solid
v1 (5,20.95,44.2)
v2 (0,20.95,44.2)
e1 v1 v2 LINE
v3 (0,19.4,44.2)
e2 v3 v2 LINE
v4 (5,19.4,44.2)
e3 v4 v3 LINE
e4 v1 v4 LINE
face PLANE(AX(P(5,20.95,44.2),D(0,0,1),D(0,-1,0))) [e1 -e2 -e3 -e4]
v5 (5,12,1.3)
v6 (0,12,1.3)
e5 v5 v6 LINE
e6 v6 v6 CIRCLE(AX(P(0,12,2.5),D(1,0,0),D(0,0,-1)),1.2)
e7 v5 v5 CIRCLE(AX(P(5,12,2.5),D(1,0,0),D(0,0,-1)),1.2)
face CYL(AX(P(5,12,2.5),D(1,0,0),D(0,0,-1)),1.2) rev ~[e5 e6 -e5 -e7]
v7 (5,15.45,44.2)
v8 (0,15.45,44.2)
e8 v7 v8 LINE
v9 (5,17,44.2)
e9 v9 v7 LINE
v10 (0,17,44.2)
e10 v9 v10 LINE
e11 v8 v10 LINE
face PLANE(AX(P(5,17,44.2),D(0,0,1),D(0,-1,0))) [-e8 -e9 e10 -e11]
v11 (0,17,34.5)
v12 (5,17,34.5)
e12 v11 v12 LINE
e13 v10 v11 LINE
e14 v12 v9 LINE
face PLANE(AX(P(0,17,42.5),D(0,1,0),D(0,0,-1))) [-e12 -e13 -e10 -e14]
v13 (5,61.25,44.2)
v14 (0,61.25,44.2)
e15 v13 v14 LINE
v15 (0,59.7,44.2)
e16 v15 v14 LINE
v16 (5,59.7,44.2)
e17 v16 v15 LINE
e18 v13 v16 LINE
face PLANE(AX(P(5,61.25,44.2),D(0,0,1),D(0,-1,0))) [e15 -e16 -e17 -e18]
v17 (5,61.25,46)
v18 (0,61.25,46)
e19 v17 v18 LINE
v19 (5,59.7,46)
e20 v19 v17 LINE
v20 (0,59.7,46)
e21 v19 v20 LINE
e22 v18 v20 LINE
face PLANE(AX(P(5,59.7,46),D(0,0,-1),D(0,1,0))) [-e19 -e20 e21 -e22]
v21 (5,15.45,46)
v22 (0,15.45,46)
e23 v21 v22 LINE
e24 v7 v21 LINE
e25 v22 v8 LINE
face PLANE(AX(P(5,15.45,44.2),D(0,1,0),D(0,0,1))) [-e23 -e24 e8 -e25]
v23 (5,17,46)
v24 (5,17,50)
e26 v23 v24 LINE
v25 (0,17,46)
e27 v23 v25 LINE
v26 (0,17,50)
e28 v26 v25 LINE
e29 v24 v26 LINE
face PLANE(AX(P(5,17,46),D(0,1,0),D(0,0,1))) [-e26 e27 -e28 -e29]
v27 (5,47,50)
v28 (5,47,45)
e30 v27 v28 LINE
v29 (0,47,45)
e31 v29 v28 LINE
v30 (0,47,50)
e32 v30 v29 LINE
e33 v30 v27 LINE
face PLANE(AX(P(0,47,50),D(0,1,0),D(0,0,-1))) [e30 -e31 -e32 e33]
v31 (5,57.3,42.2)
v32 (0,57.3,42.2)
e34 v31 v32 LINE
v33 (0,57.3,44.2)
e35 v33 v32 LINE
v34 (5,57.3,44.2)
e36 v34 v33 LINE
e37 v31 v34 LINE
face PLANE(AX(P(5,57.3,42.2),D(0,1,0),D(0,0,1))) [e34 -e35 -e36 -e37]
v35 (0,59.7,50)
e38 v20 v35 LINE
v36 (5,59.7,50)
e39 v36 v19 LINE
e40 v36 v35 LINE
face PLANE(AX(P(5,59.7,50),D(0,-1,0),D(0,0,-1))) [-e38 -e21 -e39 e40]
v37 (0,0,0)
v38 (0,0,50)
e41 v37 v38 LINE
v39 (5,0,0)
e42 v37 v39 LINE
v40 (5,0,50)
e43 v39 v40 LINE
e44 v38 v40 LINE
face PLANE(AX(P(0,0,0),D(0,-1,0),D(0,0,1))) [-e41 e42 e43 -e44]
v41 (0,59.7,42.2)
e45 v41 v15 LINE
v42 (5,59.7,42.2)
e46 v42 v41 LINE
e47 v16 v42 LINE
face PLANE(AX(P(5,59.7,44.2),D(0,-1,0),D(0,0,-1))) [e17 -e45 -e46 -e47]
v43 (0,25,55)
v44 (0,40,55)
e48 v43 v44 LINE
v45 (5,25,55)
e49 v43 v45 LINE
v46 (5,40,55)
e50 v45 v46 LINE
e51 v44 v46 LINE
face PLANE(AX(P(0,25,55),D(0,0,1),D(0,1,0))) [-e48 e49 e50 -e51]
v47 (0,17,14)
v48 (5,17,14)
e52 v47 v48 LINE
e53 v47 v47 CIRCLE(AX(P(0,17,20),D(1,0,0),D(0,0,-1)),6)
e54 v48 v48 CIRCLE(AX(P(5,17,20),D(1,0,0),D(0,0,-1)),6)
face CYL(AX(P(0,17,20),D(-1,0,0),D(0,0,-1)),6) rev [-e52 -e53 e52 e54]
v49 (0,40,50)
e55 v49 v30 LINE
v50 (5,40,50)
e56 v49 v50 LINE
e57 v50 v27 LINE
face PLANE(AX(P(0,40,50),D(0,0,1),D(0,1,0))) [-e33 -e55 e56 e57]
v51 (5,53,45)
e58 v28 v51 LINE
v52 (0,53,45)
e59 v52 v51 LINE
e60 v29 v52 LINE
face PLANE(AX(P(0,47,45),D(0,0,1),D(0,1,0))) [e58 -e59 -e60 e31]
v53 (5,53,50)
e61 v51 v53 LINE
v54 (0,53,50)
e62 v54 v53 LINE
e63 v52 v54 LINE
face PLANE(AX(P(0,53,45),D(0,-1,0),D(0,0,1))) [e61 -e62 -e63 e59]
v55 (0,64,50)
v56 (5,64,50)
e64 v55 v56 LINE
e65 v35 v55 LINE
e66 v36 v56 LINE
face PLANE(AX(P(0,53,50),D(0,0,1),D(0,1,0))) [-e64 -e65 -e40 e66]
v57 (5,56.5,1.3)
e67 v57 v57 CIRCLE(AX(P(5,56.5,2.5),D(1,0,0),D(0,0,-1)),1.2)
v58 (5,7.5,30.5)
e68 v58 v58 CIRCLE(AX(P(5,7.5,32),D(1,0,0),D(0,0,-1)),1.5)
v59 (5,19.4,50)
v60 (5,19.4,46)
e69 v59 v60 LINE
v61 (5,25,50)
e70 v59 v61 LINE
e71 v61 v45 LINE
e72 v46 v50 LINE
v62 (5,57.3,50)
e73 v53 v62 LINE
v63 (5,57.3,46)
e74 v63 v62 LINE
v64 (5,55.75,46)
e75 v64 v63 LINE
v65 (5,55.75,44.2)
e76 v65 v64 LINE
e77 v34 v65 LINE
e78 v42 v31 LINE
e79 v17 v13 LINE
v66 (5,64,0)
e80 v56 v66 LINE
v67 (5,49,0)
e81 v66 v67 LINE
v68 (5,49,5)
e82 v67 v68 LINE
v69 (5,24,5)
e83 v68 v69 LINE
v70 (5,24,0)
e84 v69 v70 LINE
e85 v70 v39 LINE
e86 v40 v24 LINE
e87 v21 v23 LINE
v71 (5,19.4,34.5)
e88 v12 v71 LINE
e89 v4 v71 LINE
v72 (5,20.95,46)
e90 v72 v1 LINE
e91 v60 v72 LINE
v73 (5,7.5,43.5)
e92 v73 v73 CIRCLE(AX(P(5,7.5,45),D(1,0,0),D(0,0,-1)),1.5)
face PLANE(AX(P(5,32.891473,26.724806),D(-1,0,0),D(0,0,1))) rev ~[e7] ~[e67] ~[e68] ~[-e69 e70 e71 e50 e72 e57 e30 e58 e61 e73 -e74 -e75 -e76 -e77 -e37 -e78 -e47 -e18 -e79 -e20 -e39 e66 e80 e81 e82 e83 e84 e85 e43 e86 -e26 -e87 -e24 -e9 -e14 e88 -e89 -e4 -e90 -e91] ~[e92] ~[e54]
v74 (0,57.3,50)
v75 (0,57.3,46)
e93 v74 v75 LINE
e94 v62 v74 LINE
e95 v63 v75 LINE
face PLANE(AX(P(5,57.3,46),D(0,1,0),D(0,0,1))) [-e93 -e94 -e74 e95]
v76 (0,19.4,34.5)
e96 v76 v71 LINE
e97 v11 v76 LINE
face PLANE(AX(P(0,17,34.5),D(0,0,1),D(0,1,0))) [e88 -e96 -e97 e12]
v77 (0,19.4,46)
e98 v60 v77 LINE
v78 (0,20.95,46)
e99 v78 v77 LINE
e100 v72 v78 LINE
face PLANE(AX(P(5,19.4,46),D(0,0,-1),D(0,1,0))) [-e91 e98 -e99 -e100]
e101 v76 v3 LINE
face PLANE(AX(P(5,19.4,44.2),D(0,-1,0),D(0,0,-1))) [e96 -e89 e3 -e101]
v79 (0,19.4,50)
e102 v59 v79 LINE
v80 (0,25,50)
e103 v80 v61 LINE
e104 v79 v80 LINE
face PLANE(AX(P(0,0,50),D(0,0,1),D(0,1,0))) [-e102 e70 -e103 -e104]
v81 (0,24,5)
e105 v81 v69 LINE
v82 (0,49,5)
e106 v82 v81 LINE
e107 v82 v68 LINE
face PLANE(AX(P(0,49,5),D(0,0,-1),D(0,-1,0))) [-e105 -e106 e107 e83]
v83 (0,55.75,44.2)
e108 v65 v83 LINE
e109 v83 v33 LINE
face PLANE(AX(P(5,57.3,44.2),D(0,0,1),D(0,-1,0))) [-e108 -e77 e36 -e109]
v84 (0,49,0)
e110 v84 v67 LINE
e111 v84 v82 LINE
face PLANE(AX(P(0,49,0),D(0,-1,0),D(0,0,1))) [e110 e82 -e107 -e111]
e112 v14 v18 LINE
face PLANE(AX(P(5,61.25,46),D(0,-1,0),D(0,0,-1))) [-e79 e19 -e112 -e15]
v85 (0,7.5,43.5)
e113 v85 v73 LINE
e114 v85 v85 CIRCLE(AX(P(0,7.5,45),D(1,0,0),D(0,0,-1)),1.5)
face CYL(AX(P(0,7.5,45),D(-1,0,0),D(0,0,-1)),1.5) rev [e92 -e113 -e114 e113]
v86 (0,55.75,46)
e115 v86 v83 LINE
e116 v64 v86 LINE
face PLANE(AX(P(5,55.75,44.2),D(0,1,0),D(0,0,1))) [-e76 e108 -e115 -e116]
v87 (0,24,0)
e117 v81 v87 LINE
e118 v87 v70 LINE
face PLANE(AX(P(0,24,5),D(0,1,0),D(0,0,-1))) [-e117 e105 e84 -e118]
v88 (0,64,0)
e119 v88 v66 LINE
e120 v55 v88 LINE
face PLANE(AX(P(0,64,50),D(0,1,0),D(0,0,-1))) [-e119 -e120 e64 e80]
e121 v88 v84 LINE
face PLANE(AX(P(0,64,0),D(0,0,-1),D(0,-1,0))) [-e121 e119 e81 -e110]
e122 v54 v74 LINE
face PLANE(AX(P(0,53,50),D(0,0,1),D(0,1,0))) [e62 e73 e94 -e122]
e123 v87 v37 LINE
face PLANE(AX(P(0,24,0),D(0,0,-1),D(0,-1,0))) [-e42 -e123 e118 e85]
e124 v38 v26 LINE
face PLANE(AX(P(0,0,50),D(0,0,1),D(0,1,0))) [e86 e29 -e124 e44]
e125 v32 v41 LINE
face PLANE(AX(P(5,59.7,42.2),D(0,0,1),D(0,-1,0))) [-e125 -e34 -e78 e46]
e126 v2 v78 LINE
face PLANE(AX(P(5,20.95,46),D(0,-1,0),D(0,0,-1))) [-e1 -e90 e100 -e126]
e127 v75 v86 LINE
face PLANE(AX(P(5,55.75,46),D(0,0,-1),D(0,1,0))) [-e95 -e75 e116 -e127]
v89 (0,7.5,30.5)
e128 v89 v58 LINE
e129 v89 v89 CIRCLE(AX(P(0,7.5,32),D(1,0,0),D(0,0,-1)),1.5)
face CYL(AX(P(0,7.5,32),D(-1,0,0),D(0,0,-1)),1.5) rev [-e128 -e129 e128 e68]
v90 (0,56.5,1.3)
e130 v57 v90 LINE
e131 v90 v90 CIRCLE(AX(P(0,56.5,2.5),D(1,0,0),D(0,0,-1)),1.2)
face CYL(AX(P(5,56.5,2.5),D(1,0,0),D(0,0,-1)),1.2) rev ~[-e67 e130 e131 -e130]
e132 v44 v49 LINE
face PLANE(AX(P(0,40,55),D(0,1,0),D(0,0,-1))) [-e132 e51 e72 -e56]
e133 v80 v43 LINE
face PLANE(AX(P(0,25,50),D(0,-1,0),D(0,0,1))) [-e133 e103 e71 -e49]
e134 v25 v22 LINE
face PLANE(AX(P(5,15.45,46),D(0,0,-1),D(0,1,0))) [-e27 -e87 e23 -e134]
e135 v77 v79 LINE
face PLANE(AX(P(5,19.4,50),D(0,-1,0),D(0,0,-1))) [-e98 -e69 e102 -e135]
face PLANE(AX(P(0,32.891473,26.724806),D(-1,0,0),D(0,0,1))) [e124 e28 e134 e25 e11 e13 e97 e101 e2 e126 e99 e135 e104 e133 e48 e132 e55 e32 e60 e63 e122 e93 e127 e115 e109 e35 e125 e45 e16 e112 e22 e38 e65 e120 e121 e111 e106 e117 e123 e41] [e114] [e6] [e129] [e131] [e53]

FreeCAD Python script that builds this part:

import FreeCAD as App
import Part
import Sketcher
from FreeCAD import Vector

doc = App.newDocument("Part")
body = doc.addObject("PartDesign::Body", "Body")

sketch1 = doc.addObject("Sketcher::SketchObject", "Sketch")
body.addObject(sketch1)
sketch1.AttachmentSupport = (doc.YZ_Plane, [""])
sketch1.MapMode = "FlatFace"
sketch1.addGeometry(Part.LineSegment(Vector(0, 50, 0), Vector(0, 0, 0)), False)
sketch1.addGeometry(Part.LineSegment(Vector(0, 0, 0), Vector(24, 0, 0)), False)
sketch1.addGeometry(Part.LineSegment(Vector(24, 0, 0), Vector(24, 5, 0)), False)
sketch1.addGeometry(Part.LineSegment(Vector(24, 5, 0), Vector(49, 5, 0)), False)
sketch1.addGeometry(Part.LineSegment(Vector(49, 5, 0), Vector(49, 0, 0)), False)
sketch1.addGeometry(Part.LineSegment(Vector(49, 0, 0), Vector(64, 0, 0)), False)
sketch1.addGeometry(Part.LineSegment(Vector(64, 0, 0), Vector(64, 50, 0)), False)
sketch1.addGeometry(Part.LineSegment(Vector(64, 50, 0), Vector(53, 50, 0)), False)
sketch1.addGeometry(Part.LineSegment(Vector(53, 50, 0), Vector(53, 45, 0)), False)
sketch1.addGeometry(Part.LineSegment(Vector(53, 45, 0), Vector(47, 45, 0)), False)
sketch1.addGeometry(Part.LineSegment(Vector(47, 45, 0), Vector(47, 50, 0)), False)
sketch1.addGeometry(Part.LineSegment(Vector(47, 50, 0), Vector(40, 50, 0)), False)
sketch1.addGeometry(Part.LineSegment(Vector(40, 50, 0), Vector(40, 55, 0)), False)
sketch1.addGeometry(Part.LineSegment(Vector(40, 55, 0), Vector(25, 55, 0)), False)
sketch1.addGeometry(Part.LineSegment(Vector(25, 55, 0), Vector(25, 50, 0)), False)
sketch1.addGeometry(Part.LineSegment(Vector(25, 50, 0), Vector(0, 50, 0)), False)
sketch1.addGeometry(Part.Circle(Vector(7.5, 32, 0), Vector(0, 0, 1), 1.5), False)
sketch1.addGeometry(Part.Circle(Vector(7.5, 45, 0), Vector(0, 0, 1), 1.5), False)
sketch1.addGeometry(Part.Circle(Vector(17, 20, 0), Vector(0, 0, 1), 6), False)
sketch1.addGeometry(Part.LineSegment(Vector(17, 42.5, 0), Vector(19.4, 42.5, 0)), False)
sketch1.addGeometry(Part.LineSegment(Vector(19.4, 42.5, 0), Vector(19.4, 34.5, 0)), False)
sketch1.addGeometry(Part.LineSegment(Vector(19.4, 34.5, 0), Vector(17, 34.5, 0)), False)
sketch1.addGeometry(Part.LineSegment(Vector(17, 34.5, 0), Vector(17, 42.5, 0)), False)
sketch1.addConstraint(Sketcher.Constraint("Coincident", 0, 2, 1, 1))
sketch1.addConstraint(Sketcher.Constraint("Coincident", 1, 2, 2, 1))
sketch1.addConstraint(Sketcher.Constraint("Coincident", 2, 2, 3, 1))
sketch1.addConstraint(Sketcher.Constraint("Coincident", 3, 2, 4, 1))
sketch1.addConstraint(Sketcher.Constraint("Coincident", 4, 2, 5, 1))
sketch1.addConstraint(Sketcher.Constraint("Coincident", 5, 2, 6, 1))
sketch1.addConstraint(Sketcher.Constraint("Coincident", 6, 2, 7, 1))
sketch1.addConstraint(Sketcher.Constraint("Coincident", 7, 2, 8, 1))
sketch1.addConstraint(Sketcher.Constraint("Coincident", 8, 2, 9, 1))
sketch1.addConstraint(Sketcher.Constraint("Coincident", 9, 2, 10, 1))
sketch1.addConstraint(Sketcher.Constraint("Coincident", 10, 2, 11, 1))
sketch1.addConstraint(Sketcher.Constraint("Coincident", 11, 2, 12, 1))
sketch1.addConstraint(Sketcher.Constraint("Coincident", 12, 2, 13, 1))
sketch1.addConstraint(Sketcher.Constraint("Coincident", 13, 2, 14, 1))
sketch1.addConstraint(Sketcher.Constraint("Coincident", 14, 2, 15, 1))
sketch1.addConstraint(Sketcher.Constraint("Coincident", 15, 2, 0, 1))
sketch1.addConstraint(Sketcher.Constraint("Coincident", 19, 2, 20, 1))
sketch1.addConstraint(Sketcher.Constraint("Coincident", 20, 2, 21, 1))
sketch1.addConstraint(Sketcher.Constraint("Coincident", 21, 2, 22, 1))
sketch1.addConstraint(Sketcher.Constraint("Coincident", 22, 2, 19, 1))
sketch1.addConstraint(Sketcher.Constraint("Vertical", 0))
sketch1.addConstraint(Sketcher.Constraint("Horizontal", 1))
sketch1.addConstraint(Sketcher.Constraint("Vertical", 2))
sketch1.addConstraint(Sketcher.Constraint("Horizontal", 3))
sketch1.addConstraint(Sketcher.Constraint("Vertical", 4))
sketch1.addConstraint(Sketcher.Constraint("Horizontal", 5))
sketch1.addConstraint(Sketcher.Constraint("Vertical", 6))
sketch1.addConstraint(Sketcher.Constraint("Horizontal", 7))
sketch1.addConstraint(Sketcher.Constraint("Vertical", 8))
sketch1.addConstraint(Sketcher.Constraint("Horizontal", 9))
sketch1.addConstraint(Sketcher.Constraint("Vertical", 10))
sketch1.addConstraint(Sketcher.Constraint("Horizontal", 11))
sketch1.addConstraint(Sketcher.Constraint("Vertical", 12))
sketch1.addConstraint(Sketcher.Constraint("Horizontal", 13))
sketch1.addConstraint(Sketcher.Constraint("Vertical", 14))
sketch1.addConstraint(Sketcher.Constraint("Horizontal", 15))
sketch1.addConstraint(Sketcher.Constraint("Horizontal", 19))
sketch1.addConstraint(Sketcher.Constraint("Vertical", 20))
sketch1.addConstraint(Sketcher.Constraint("Horizontal", 21))
sketch1.addConstraint(Sketcher.Constraint("Vertical", 22))
sketch1.addConstraint(Sketcher.Constraint("Coincident", 0, 2, -1, 1))
sketch1.addConstraint(Sketcher.Constraint("Equal", 16, 17))
sketch1.addConstraint(Sketcher.Constraint("PointOnObject", 4, 2, -1))
sketch1.addConstraint(Sketcher.Constraint("Horizontal", 17, 3, 8, 2))
sketch1.addConstraint(Sketcher.Constraint("Horizontal", 7, 2, 10, 2))
sketch1.addConstraint(Sketcher.Constraint("Horizontal", 11, 2, 14, 2))
sketch1.addConstraint(Sketcher.Constraint("Vertical", 16, 3, 17, 3))
sketch1.addConstraint(Sketcher.Constraint("Vertical", 18, 3, 21, 2))
sketch1.addConstraint(Sketcher.Constraint("Equal", 5, 13))
sketch1.addConstraint(Sketcher.Constraint("Equal", 3, 15))
sketch1.addConstraint(Sketcher.Constraint("Equal", 4, 8))
sketch1.addConstraint(Sketcher.Constraint("Equal", 10, 12))
sketch1.addConstraint(Sketcher.Constraint("Diameter", 16, 3.0))
sketch1.addConstraint(Sketcher.Constraint("Diameter", 18, 12.0))
sketch1.addConstraint(Sketcher.Constraint("DistanceX", 1, 1, 1, 2, 24.0))
sketch1.addConstraint(Sketcher.Constraint("DistanceX", 3, 1, 3, 2, 25.0))
sketch1.addConstraint(Sketcher.Constraint("DistanceX", 5, 1, 5, 2, 15.0))
sketch1.addConstraint(Sketcher.Constraint("DistanceX", 7, 2, 7, 1, 11.0))
sketch1.addConstraint(Sketcher.Constraint("DistanceX", 9, 2, 9, 1, 6.0))
sketch1.addConstraint(Sketcher.Constraint("DistanceY", 0, 2, 0, 1, 50.0))
sketch1.addConstraint(Sketcher.Constraint("DistanceY", 2, 1, 2, 2, 5.0))
sketch1.addConstraint(Sketcher.Constraint("DistanceY", 20, 2, 20, 1, 8.0))
sketch1.addConstraint(Sketcher.Constraint("DistanceX", 19, 1, 19, 2, 2.4))
sketch1.addConstraint(Sketcher.Constraint("DistanceY", -1, 1, 16, 3, 32.0))
sketch1.addConstraint(Sketcher.Constraint("DistanceX", -1, 1, 18, 3, 17.0))
sketch1.addConstraint(Sketcher.Constraint("DistanceY", -1, 1, 18, 3, 20.0))
sketch1.addConstraint(Sketcher.Constraint("DistanceX", -1, 1, 16, 3, 7.5))
sketch1.addConstraint(Sketcher.Constraint("DistanceY", -1, 1, 19, 2, 42.5))
pad1 = doc.addObject("PartDesign::Pad", "Pad")
body.addObject(pad1)
pad1.Profile = sketch1
pad1.Length = 5

sketch2 = doc.addObject("Sketcher::SketchObject", "Sketch001")
body.addObject(sketch2)
sketch2.AttachmentSupport = (doc.YZ_Plane, [""])
sketch2.MapMode = "FlatFace"
sketch2.AttachmentOffset = App.Placement(Vector(0, 0, 5), App.Rotation())
sketch2.addGeometry(Part.Circle(Vector(56.5, 2.5, 0), Vector(0, 0, 1), 1.2), False)
sketch2.addGeometry(Part.Circle(Vector(12, 2.5, 0), Vector(0, 0, 1), 1.2), False)
sketch2.addGeometry(Part.LineSegment(Vector(59.7, 46, 0), Vector(59.7, 50, 0)), False)
sketch2.addGeometry(Part.LineSegment(Vector(59.7, 50, 0), Vector(57.3, 50, 0)), False)
sketch2.addGeometry(Part.LineSegment(Vector(57.3, 50, 0), Vector(57.3, 46, 0)), False)
sketch2.addGeometry(Part.LineSegment(Vector(57.3, 46, 0), Vector(55.75, 46, 0)), False)
sketch2.addGeometry(Part.LineSegment(Vector(55.75, 46, 0), Vector(55.75, 44.2, 0)), False)
sketch2.addGeometry(Part.LineSegment(Vector(55.75, 44.2, 0), Vector(57.3, 44.2, 0)), False)
sketch2.addGeometry(Part.LineSegment(Vector(57.3, 44.2, 0), Vector(57.3, 42.2, 0)), False)
sketch2.addGeometry(Part.LineSegment(Vector(57.3, 42.2, 0), Vector(59.7, 42.2, 0)), False)
sketch2.addGeometry(Part.LineSegment(Vector(59.7, 42.2, 0), Vector(59.7, 44.2, 0)), False)
sketch2.addGeometry(Part.LineSegment(Vector(59.7, 44.2, 0), Vector(61.25, 44.2, 0)), False)
sketch2.addGeometry(Part.LineSegment(Vector(61.25, 44.2, 0), Vector(61.25, 46, 0)), False)
sketch2.addGeometry(Part.LineSegment(Vector(61.25, 46, 0), Vector(59.7, 46, 0)), False)
sketch2.addGeometry(Part.LineSegment(Vector(19.4, 42.2, 0), Vector(19.4, 44.2, 0)), False)
sketch2.addGeometry(Part.LineSegment(Vector(19.4, 44.2, 0), Vector(20.95, 44.2, 0)), False)
sketch2.addGeometry(Part.LineSegment(Vector(20.95, 44.2, 0), Vector(20.95, 46, 0)), False)
sketch2.addGeometry(Part.LineSegment(Vector(20.95, 46, 0), Vector(19.4, 46, 0)), False)
sketch2.addGeometry(Part.LineSegment(Vector(19.4, 46, 0), Vector(19.4, 50, 0)), False)
sketch2.addGeometry(Part.LineSegment(Vector(19.4, 50, 0), Vector(17, 50, 0)), False)
sketch2.addGeometry(Part.LineSegment(Vector(17, 50, 0), Vector(17, 46, 0)), False)
sketch2.addGeometry(Part.LineSegment(Vector(17, 46, 0), Vector(15.45, 46, 0)), False)
sketch2.addGeometry(Part.LineSegment(Vector(15.45, 46, 0), Vector(15.45, 44.2, 0)), False)
sketch2.addGeometry(Part.LineSegment(Vector(15.45, 44.2, 0), Vector(17, 44.2, 0)), False)
sketch2.addGeometry(Part.LineSegment(Vector(17, 44.2, 0), Vector(17, 42.2, 0)), False)
sketch2.addGeometry(Part.LineSegment(Vector(17, 42.2, 0), Vector(19.4, 42.2, 0)), False)
sketch2.addConstraint(Sketcher.Constraint("Coincident", 2, 2, 3, 1))
sketch2.addConstraint(Sketcher.Constraint("Coincident", 3, 2, 4, 1))
sketch2.addConstraint(Sketcher.Constraint("Coincident", 4, 2, 5, 1))
sketch2.addConstraint(Sketcher.Constraint("Coincident", 5, 2, 6, 1))
sketch2.addConstraint(Sketcher.Constraint("Coincident", 6, 2, 7, 1))
sketch2.addConstraint(Sketcher.Constraint("Coincident", 7, 2, 8, 1))
sketch2.addConstraint(Sketcher.Constraint("Coincident", 8, 2, 9, 1))
sketch2.addConstraint(Sketcher.Constraint("Coincident", 9, 2, 10, 1))
sketch2.addConstraint(Sketcher.Constraint("Coincident", 10, 2, 11, 1))
sketch2.addConstraint(Sketcher.Constraint("Coincident", 11, 2, 12, 1))
sketch2.addConstraint(Sketcher.Constraint("Coincident", 12, 2, 13, 1))
sketch2.addConstraint(Sketcher.Constraint("Coincident", 13, 2, 2, 1))
sketch2.addConstraint(Sketcher.Constraint("Coincident", 14, 2, 15, 1))
sketch2.addConstraint(Sketcher.Constraint("Coincident", 15, 2, 16, 1))
sketch2.addConstraint(Sketcher.Constraint("Coincident", 16, 2, 17, 1))
sketch2.addConstraint(Sketcher.Constraint("Coincident", 17, 2, 18, 1))
sketch2.addConstraint(Sketcher.Constraint("Coincident", 18, 2, 19, 1))
sketch2.addConstraint(Sketcher.Constraint("Coincident", 19, 2, 20, 1))
sketch2.addConstraint(Sketcher.Constraint("Coincident", 20, 2, 21, 1))
sketch2.addConstraint(Sketcher.Constraint("Coincident", 21, 2, 22, 1))
sketch2.addConstraint(Sketcher.Constraint("Coincident", 22, 2, 23, 1))
sketch2.addConstraint(Sketcher.Constraint("Coincident", 23, 2, 24, 1))
sketch2.addConstraint(Sketcher.Constraint("Coincident", 24, 2, 25, 1))
sketch2.addConstraint(Sketcher.Constraint("Coincident", 25, 2, 14, 1))
sketch2.addConstraint(Sketcher.Constraint("Vertical", 2))
sketch2.addConstraint(Sketcher.Constraint("Horizontal", 3))
sketch2.addConstraint(Sketcher.Constraint("Vertical", 4))
sketch2.addConstraint(Sketcher.Constraint("Horizontal", 5))
sketch2.addConstraint(Sketcher.Constraint("Vertical", 6))
sketch2.addConstraint(Sketcher.Constraint("Horizontal", 7))
sketch2.addConstraint(Sketcher.Constraint("Vertical", 8))
sketch2.addConstraint(Sketcher.Constraint("Horizontal", 9))
sketch2.addConstraint(Sketcher.Constraint("Vertical", 10))
sketch2.addConstraint(Sketcher.Constraint("Horizontal", 11))
sketch2.addConstraint(Sketcher.Constraint("Vertical", 12))
sketch2.addConstraint(Sketcher.Constraint("Horizontal", 13))
sketch2.addConstraint(Sketcher.Constraint("Vertical", 14))
sketch2.addConstraint(Sketcher.Constraint("Horizontal", 15))
sketch2.addConstraint(Sketcher.Constraint("Vertical", 16))
sketch2.addConstraint(Sketcher.Constraint("Horizontal", 17))
sketch2.addConstraint(Sketcher.Constraint("Vertical", 18))
sketch2.addConstraint(Sketcher.Constraint("Horizontal", 19))
sketch2.addConstraint(Sketcher.Constraint("Vertical", 20))
sketch2.addConstraint(Sketcher.Constraint("Horizontal", 21))
sketch2.addConstraint(Sketcher.Constraint("Vertical", 22))
sketch2.addConstraint(Sketcher.Constraint("Horizontal", 23))
sketch2.addConstraint(Sketcher.Constraint("Vertical", 24))
sketch2.addConstraint(Sketcher.Constraint("Horizontal", 25))
sketch2.addConstraint(Sketcher.Constraint("Equal", 0, 1))
sketch2.addConstraint(Sketcher.Constraint("Horizontal", 0, 3, 1, 3))
sketch2.addConstraint(Sketcher.Constraint("Horizontal", 7, 2, 10, 2))
sketch2.addConstraint(Sketcher.Constraint("Horizontal", 5, 2, 12, 2))
sketch2.addConstraint(Sketcher.Constraint("Horizontal", 11, 2, 14, 2))
sketch2.addConstraint(Sketcher.Constraint("Horizontal", 13, 2, 16, 2))
sketch2.addConstraint(Sketcher.Constraint("Horizontal", 3, 2, 18, 2))
sketch2.addConstraint(Sketcher.Constraint("Horizontal", 17, 2, 20, 2))
sketch2.addConstraint(Sketcher.Constraint("Horizontal", 15, 2, 22, 2))
sketch2.addConstraint(Sketcher.Constraint("Horizontal", 9, 2, 24, 2))
sketch2.addConstraint(Sketcher.Constraint("Vertical", 4, 2, 7, 2))
sketch2.addConstraint(Sketcher.Constraint("Vertical", 2, 2, 9, 2))
sketch2.addConstraint(Sketcher.Constraint("Vertical", 14, 2, 17, 2))
sketch2.addConstraint(Sketcher.Constraint("Vertical", 20, 2, 23, 2))
sketch2.addConstraint(Sketcher.Constraint("Equal", 7, 11))
sketch2.addConstraint(Sketcher.Constraint("Equal", 13, 15))
sketch2.addConstraint(Sketcher.Constraint("Equal", 9, 19))
sketch2.addConstraint(Sketcher.Constraint("Equal", 17, 21))
sketch2.addConstraint(Sketcher.Constraint("Diameter", 0, 2.4))
sketch2.addConstraint(Sketcher.Constraint("DistanceY", 2, 1, 2, 2, 4.0))
sketch2.addConstraint(Sketcher.Constraint("DistanceY", 8, 2, 8, 1, 2.0))
sketch2.addConstraint(Sketcher.Constraint("DistanceX", 3, 2, 3, 1, 2.4))
sketch2.addConstraint(Sketcher.Constraint("DistanceY", 6, 2, 6, 1, 1.8))
sketch2.addConstraint(Sketcher.Constraint("DistanceX", -1, 1, 1, 3, 12.0))
sketch2.addConstraint(Sketcher.Constraint("DistanceY", -1, 1, 2, 2, 50.0))
sketch2.addConstraint(Sketcher.Constraint("DistanceX", -1, 1, 19, 2, 17.0))
sketch2.addConstraint(Sketcher.Constraint("DistanceX", 5, 2, 5, 1, 1.55))
sketch2.addConstraint(Sketcher.Constraint("DistanceX", -1, 1, 0, 3, 56.5))
sketch2.addConstraint(Sketcher.Constraint("DistanceY", -1, 1, 0, 3, 2.5))
sketch2.addConstraint(Sketcher.Constraint("DistanceX", -1, 1, 2, 2, 59.7))
pocket1 = doc.addObject("PartDesign::Pocket", "Pocket")
body.addObject(pocket1)
pocket1.Profile = sketch2
pocket1.Type = "ThroughAll"

doc.recompute()
